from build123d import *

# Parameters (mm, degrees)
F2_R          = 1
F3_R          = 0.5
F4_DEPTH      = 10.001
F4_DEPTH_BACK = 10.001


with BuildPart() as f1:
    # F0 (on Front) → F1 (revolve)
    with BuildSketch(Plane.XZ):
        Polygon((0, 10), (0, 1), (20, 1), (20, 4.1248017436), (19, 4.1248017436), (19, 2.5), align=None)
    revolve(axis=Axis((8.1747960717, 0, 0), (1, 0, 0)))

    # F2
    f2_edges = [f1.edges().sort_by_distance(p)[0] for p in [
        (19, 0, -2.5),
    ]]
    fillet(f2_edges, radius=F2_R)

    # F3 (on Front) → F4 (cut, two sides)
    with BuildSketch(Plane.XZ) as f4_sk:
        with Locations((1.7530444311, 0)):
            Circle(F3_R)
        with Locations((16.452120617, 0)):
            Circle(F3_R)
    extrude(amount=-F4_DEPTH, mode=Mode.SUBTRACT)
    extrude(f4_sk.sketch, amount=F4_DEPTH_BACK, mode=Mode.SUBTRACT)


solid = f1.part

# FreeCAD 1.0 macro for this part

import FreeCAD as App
import Part
import Sketcher
from FreeCAD import Vector
Q = App.Units.Quantity


def edges_at(feature, points):
    """Names of the edges that pass closest to the given points."""
    edges = feature.Shape.Edges
    near = lambda p: min(range(len(edges)), key=lambda i: edges[i].distToShape(Part.Vertex(*p))[0])
    return sorted({f"Edge{near(p) + 1}" for p in points})

doc = App.newDocument("Part")
body = doc.addObject("PartDesign::Body", "Body")

# Sketch on XZ plane
sketch1 = body.newObject("Sketcher::SketchObject", "Sketch")
sketch1.AttachmentSupport = (doc.getObject("XZ_Plane"), [""])
sketch1.MapMode = "FlatFace"
sketch1.addGeometry([
    Part.LineSegment(Vector(0, 10, 0), Vector(0, 1, 0)),  # 0
    Part.LineSegment(Vector(0, 1, 0), Vector(20, 1, 0)),  # 1
    Part.LineSegment(Vector(20, 1, 0), Vector(20, 4.124802, 0)),  # 2
    Part.LineSegment(Vector(20, 4.124802, 0), Vector(19, 4.124802, 0)),  # 3
    Part.LineSegment(Vector(19, 4.124802, 0), Vector(19, 2.5, 0)),  # 4
    Part.LineSegment(Vector(19, 2.5, 0), Vector(0, 10, 0)),  # 5
], False)
sketch1.addConstraint([
    Sketcher.Constraint("Coincident", 0, 2, 1, 1),
    Sketcher.Constraint("Coincident", 1, 2, 2, 1),
    Sketcher.Constraint("Coincident", 2, 2, 3, 1),
    Sketcher.Constraint("Coincident", 3, 2, 4, 1),
    Sketcher.Constraint("Coincident", 4, 2, 5, 1),
    Sketcher.Constraint("Coincident", 5, 2, 0, 1),
    Sketcher.Constraint("Vertical", 0),
    Sketcher.Constraint("Horizontal", 1),
    Sketcher.Constraint("Vertical", 2),
    Sketcher.Constraint("Horizontal", 3),
    Sketcher.Constraint("Vertical", 4),
    Sketcher.Constraint("PointOnObject", 0, 2, -2),
    Sketcher.Constraint("DistanceX", 1, 1, 1, 2, Q("20 mm")),
    Sketcher.Constraint("DistanceX", 3, 2, 3, 1, Q("1 mm")),
    Sketcher.Constraint("DistanceY", 0, 2, 0, 1, Q("9 mm")),
    Sketcher.Constraint("DistanceY", -1, 1, 0, 2, Q("1 mm")),
    Sketcher.Constraint("DistanceY", -1, 1, 4, 2, Q("2.5 mm")),
    Sketcher.Constraint("DistanceY", 2, 1, 2, 2, Q("3.124802 mm")),
])
revolution = body.newObject("PartDesign::Revolution", "Revolution")
revolution.Profile = sketch1
revolution.ReferenceAxis = (sketch1, ["H_Axis"])
revolution.Angle = 360
doc.recompute()

fillet = body.newObject("PartDesign::Fillet", "Fillet")
fillet.Base = (revolution, edges_at(revolution, [(19, 0, -2.5)]))
fillet.Radius = 1

# Sketch on XZ plane
sketch2 = body.newObject("Sketcher::SketchObject", "Sketch001")
sketch2.AttachmentSupport = (doc.getObject("XZ_Plane"), [""])
sketch2.MapMode = "FlatFace"
sketch2.addGeometry([
    Part.Circle(Vector(1.753044, 0, 0), Vector(0, 0, 1), 0.5),
    Part.Circle(Vector(16.452121, 0, 0), Vector(0, 0, 1), 0.5),
], False)
sketch2.addConstraint([
    Sketcher.Constraint("Equal", 0, 1),
    Sketcher.Constraint("PointOnObject", 0, 3, -1),
    Sketcher.Constraint("PointOnObject", 1, 3, -1),
    Sketcher.Constraint("Diameter", 0, Q("1 mm")),
    Sketcher.Constraint("DistanceX", -1, 1, 1, 3, Q("16.452121 mm")),
    Sketcher.Constraint("DistanceX", -1, 1, 0, 3, Q("1.753044 mm")),
])
pocket1 = body.newObject("PartDesign::Pocket", "Pocket")
pocket1.Profile = sketch2
pocket1.Type = "ThroughAll"
pocket1.Midplane = True

doc.recompute()
